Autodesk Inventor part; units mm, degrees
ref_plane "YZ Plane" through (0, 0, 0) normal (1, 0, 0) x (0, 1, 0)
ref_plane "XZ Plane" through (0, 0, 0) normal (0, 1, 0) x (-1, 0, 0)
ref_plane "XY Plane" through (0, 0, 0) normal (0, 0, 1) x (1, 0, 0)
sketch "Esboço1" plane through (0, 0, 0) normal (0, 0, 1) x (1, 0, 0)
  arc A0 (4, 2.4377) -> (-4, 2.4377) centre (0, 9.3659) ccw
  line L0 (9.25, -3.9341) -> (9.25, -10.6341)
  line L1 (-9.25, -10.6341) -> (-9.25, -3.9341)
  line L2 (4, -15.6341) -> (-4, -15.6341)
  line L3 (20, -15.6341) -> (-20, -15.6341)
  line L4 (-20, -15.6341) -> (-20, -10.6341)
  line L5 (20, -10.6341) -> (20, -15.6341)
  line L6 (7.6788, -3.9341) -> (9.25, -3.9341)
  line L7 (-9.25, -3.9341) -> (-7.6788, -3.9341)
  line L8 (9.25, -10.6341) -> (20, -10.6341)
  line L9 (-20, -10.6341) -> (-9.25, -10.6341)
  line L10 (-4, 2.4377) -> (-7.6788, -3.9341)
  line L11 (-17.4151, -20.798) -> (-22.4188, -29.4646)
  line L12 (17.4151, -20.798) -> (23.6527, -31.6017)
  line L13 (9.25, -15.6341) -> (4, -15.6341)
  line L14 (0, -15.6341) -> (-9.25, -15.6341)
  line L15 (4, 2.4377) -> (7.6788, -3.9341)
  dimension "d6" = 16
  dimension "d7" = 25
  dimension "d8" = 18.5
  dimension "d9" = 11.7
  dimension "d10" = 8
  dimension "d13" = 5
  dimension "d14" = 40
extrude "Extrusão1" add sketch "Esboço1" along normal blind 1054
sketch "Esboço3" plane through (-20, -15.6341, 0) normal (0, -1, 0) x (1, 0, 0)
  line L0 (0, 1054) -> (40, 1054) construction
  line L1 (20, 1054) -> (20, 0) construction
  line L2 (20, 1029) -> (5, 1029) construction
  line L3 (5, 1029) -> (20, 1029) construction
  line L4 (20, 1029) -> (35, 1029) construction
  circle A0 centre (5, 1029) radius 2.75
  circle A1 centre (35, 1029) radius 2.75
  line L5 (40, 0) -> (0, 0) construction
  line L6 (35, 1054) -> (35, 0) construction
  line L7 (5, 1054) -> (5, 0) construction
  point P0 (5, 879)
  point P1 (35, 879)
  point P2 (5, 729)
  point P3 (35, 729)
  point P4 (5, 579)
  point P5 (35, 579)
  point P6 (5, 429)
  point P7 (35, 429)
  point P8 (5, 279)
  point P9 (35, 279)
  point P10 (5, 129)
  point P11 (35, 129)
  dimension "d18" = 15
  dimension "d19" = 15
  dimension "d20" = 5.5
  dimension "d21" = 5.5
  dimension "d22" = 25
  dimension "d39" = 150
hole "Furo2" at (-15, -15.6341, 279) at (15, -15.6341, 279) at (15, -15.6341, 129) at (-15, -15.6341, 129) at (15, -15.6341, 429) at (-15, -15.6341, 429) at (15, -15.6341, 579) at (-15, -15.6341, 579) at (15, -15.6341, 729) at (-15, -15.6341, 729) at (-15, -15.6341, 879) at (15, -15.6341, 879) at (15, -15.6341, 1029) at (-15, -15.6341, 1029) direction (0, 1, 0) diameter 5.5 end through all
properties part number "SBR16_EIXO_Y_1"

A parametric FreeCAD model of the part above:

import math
import FreeCAD as App
import Part
import Sketcher
Q = App.Units.Quantity

doc = App.newDocument("Part")
body = doc.addObject("PartDesign::Body", "Body")

# Sketch on XY plane
sketch1 = body.newObject("Sketcher::SketchObject", "Sketch")
sketch1.AttachmentSupport = (doc.getObject("XY_Plane"), [""])
sketch1.MapMode = "FlatFace"
sketch1.addGeometry([
    Part.LineSegment(App.Vector(7.6788, -3.9341, 0), App.Vector(4, 2.4377, 0)),  # 0
    Part.ArcOfCircle(Part.Circle(App.Vector(0, 9.3659, 0), App.Vector(0, 0, 1), 7.999997), math.radians(-59.999988), math.radians(239.999988)),  # 1
    Part.LineSegment(App.Vector(-4, 2.4377, 0), App.Vector(-7.6788, -3.9341, 0)),  # 2
    Part.LineSegment(App.Vector(-7.6788, -3.9341, 0), App.Vector(-9.25, -3.9341, 0)),  # 3
    Part.LineSegment(App.Vector(-9.25, -3.9341, 0), App.Vector(-9.25, -10.6341, 0)),  # 4
    Part.LineSegment(App.Vector(-9.25, -10.6341, 0), App.Vector(-20, -10.6341, 0)),  # 5
    Part.LineSegment(App.Vector(-20, -10.6341, 0), App.Vector(-20, -15.6341, 0)),  # 6
    Part.LineSegment(App.Vector(-20, -15.6341, 0), App.Vector(20, -15.6341, 0)),  # 7
    Part.LineSegment(App.Vector(20, -15.6341, 0), App.Vector(20, -10.6341, 0)),  # 8
    Part.LineSegment(App.Vector(20, -10.6341, 0), App.Vector(9.25, -10.6341, 0)),  # 9
    Part.LineSegment(App.Vector(9.25, -10.6341, 0), App.Vector(9.25, -3.9341, 0)),  # 10
    Part.LineSegment(App.Vector(9.25, -3.9341, 0), App.Vector(7.6788, -3.9341, 0)),  # 11
], False)
sketch1.addConstraint([
    Sketcher.Constraint("Coincident", 0, 2, 1, 1),
    Sketcher.Constraint("Coincident", 1, 2, 2, 1),
    Sketcher.Constraint("Coincident", 2, 2, 3, 1),
    Sketcher.Constraint("Coincident", 3, 2, 4, 1),
    Sketcher.Constraint("Coincident", 4, 2, 5, 1),
    Sketcher.Constraint("Coincident", 5, 2, 6, 1),
    Sketcher.Constraint("Coincident", 6, 2, 7, 1),
    Sketcher.Constraint("Coincident", 7, 2, 8, 1),
    Sketcher.Constraint("Coincident", 8, 2, 9, 1),
    Sketcher.Constraint("Coincident", 9, 2, 10, 1),
    Sketcher.Constraint("Coincident", 10, 2, 11, 1),
    Sketcher.Constraint("Coincident", 11, 2, 0, 1),
    Sketcher.Constraint("Horizontal", 3),
    Sketcher.Constraint("Vertical", 4),
    Sketcher.Constraint("Horizontal", 5),
    Sketcher.Constraint("Vertical", 6),
    Sketcher.Constraint("Horizontal", 7),
    Sketcher.Constraint("Vertical", 8),
    Sketcher.Constraint("Horizontal", 9),
    Sketcher.Constraint("Vertical", 10),
    Sketcher.Constraint("Horizontal", 11),
    Sketcher.Constraint("Symmetric", 0, 2, 1, 2, -2),
    Sketcher.Constraint("Symmetric", 5, 2, 8, 2, -2),
    Sketcher.Constraint("Symmetric", 3, 2, 10, 2, -2),
    Sketcher.Constraint("Equal", 3, 11),
    Sketcher.Constraint("Radius", 1, Q("8 mm")),
    Sketcher.Constraint("DistanceX", 7, 1, 7, 2, Q("40 mm")),
    Sketcher.Constraint("DistanceY", 6, 2, 6, 1, Q("5 mm")),
    Sketcher.Constraint("DistanceX", 1, 2, 0, 2, Q("8 mm")),
    Sketcher.Constraint("DistanceY", 6, 2, 3, 2, Q("11.7 mm")),
    Sketcher.Constraint("DistanceX", 4, 2, 9, 2, Q("18.5 mm")),
    Sketcher.Constraint("Angle", 0, Q("120.0003 deg")),
    Sketcher.Constraint("DistanceY", 4, 2, 1, 3, Q("20 mm")),
    Sketcher.Constraint("DistanceY", -1, 1, 1, 3, Q("9.366 mm")),
])
pad1 = body.newObject("PartDesign::Pad", "Pad")
pad1.Profile = sketch1
pad1.Length = 1054

# Sketch on XZ plane
sketch2 = body.newObject("Sketcher::SketchObject", "Sketch001")
sketch2.AttachmentSupport = (doc.getObject("XZ_Plane"), [""])
sketch2.MapMode = "FlatFace"
sketch2.AttachmentOffset = App.Placement(App.Vector(0, 0, 15.6341), App.Rotation())
sketch2.addGeometry([
    Part.Circle(App.Vector(-15, 279, 0), App.Vector(0, 0, 1), 2.75),  # 0
    Part.Circle(App.Vector(15, 279, 0), App.Vector(0, 0, 1), 2.75),  # 1
    Part.Circle(App.Vector(15, 129, 0), App.Vector(0, 0, 1), 2.75),  # 2
    Part.Circle(App.Vector(-15, 129, 0), App.Vector(0, 0, 1), 2.75),  # 3
    Part.Circle(App.Vector(15, 429, 0), App.Vector(0, 0, 1), 2.75),  # 4
    Part.Circle(App.Vector(-15, 429, 0), App.Vector(0, 0, 1), 2.75),  # 5
    Part.Circle(App.Vector(15, 579, 0), App.Vector(0, 0, 1), 2.75),  # 6
    Part.Circle(App.Vector(-15, 579, 0), App.Vector(0, 0, 1), 2.75),  # 7
    Part.Circle(App.Vector(15, 729, 0), App.Vector(0, 0, 1), 2.75),  # 8
    Part.Circle(App.Vector(-15, 729, 0), App.Vector(0, 0, 1), 2.75),  # 9
    Part.Circle(App.Vector(-15, 879, 0), App.Vector(0, 0, 1), 2.75),  # 10
    Part.Circle(App.Vector(15, 879, 0), App.Vector(0, 0, 1), 2.75),  # 11
    Part.Circle(App.Vector(15, 1029, 0), App.Vector(0, 0, 1), 2.75),  # 12
    Part.Circle(App.Vector(-15, 1029, 0), App.Vector(0, 0, 1), 2.75),  # 13
], False)
sketch2.addConstraint([
    Sketcher.Constraint("Equal", 0, 1),
    Sketcher.Constraint("Equal", 1, 2),
    Sketcher.Constraint("Equal", 2, 3),
    Sketcher.Constraint("Equal", 3, 4),
    Sketcher.Constraint("Equal", 4, 5),
    Sketcher.Constraint("Equal", 5, 6),
    Sketcher.Constraint("Equal", 6, 7),
    Sketcher.Constraint("Equal", 7, 8),
    Sketcher.Constraint("Equal", 8, 9),
    Sketcher.Constraint("Equal", 9, 10),
    Sketcher.Constraint("Equal", 10, 11),
    Sketcher.Constraint("Equal", 11, 12),
    Sketcher.Constraint("Equal", 12, 13),
    Sketcher.Constraint("Symmetric", 0, 3, 1, 3, -2),
    Sketcher.Constraint("Symmetric", 2, 3, 3, 3, -2),
    Sketcher.Constraint("Symmetric", 4, 3, 5, 3, -2),
    Sketcher.Constraint("Symmetric", 6, 3, 7, 3, -2),
    Sketcher.Constraint("Symmetric", 8, 3, 9, 3, -2),
    Sketcher.Constraint("Symmetric", 10, 3, 11, 3, -2),
    Sketcher.Constraint("Symmetric", 12, 3, 13, 3, -2),
    Sketcher.Constraint("Vertical", 1, 3, 2, 3),
    Sketcher.Constraint("Vertical", 2, 3, 4, 3),
    Sketcher.Constraint("Vertical", 4, 3, 6, 3),
    Sketcher.Constraint("Vertical", 6, 3, 8, 3),
    Sketcher.Constraint("Vertical", 9, 3, 10, 3),
    Sketcher.Constraint("Vertical", 11, 3, 12, 3),
    Sketcher.Constraint("Diameter", 0, Q("5.5 mm")),
    Sketcher.Constraint("DistanceX", 0, 3, -1, 1, Q("15 mm")),
    Sketcher.Constraint("DistanceY", -1, 1, 0, 3, Q("279 mm")),
    Sketcher.Constraint("DistanceY", -1, 1, 2, 3, Q("129 mm")),
    Sketcher.Constraint("DistanceY", -1, 1, 4, 3, Q("429 mm")),
    Sketcher.Constraint("DistanceY", -1, 1, 6, 3, Q("579 mm")),
    Sketcher.Constraint("DistanceY", -1, 1, 8, 3, Q("729 mm")),
    Sketcher.Constraint("DistanceY", -1, 1, 10, 3, Q("879 mm")),
    Sketcher.Constraint("DistanceY", -1, 1, 12, 3, Q("1029 mm")),
])
doc.recompute()
hole = body.newObject("PartDesign::Hole", "Hole")
hole.Profile = sketch2
hole.ThreadType = "None"
hole.Diameter = 5.5
hole.DepthType = "ThroughAll"

doc.recompute()
